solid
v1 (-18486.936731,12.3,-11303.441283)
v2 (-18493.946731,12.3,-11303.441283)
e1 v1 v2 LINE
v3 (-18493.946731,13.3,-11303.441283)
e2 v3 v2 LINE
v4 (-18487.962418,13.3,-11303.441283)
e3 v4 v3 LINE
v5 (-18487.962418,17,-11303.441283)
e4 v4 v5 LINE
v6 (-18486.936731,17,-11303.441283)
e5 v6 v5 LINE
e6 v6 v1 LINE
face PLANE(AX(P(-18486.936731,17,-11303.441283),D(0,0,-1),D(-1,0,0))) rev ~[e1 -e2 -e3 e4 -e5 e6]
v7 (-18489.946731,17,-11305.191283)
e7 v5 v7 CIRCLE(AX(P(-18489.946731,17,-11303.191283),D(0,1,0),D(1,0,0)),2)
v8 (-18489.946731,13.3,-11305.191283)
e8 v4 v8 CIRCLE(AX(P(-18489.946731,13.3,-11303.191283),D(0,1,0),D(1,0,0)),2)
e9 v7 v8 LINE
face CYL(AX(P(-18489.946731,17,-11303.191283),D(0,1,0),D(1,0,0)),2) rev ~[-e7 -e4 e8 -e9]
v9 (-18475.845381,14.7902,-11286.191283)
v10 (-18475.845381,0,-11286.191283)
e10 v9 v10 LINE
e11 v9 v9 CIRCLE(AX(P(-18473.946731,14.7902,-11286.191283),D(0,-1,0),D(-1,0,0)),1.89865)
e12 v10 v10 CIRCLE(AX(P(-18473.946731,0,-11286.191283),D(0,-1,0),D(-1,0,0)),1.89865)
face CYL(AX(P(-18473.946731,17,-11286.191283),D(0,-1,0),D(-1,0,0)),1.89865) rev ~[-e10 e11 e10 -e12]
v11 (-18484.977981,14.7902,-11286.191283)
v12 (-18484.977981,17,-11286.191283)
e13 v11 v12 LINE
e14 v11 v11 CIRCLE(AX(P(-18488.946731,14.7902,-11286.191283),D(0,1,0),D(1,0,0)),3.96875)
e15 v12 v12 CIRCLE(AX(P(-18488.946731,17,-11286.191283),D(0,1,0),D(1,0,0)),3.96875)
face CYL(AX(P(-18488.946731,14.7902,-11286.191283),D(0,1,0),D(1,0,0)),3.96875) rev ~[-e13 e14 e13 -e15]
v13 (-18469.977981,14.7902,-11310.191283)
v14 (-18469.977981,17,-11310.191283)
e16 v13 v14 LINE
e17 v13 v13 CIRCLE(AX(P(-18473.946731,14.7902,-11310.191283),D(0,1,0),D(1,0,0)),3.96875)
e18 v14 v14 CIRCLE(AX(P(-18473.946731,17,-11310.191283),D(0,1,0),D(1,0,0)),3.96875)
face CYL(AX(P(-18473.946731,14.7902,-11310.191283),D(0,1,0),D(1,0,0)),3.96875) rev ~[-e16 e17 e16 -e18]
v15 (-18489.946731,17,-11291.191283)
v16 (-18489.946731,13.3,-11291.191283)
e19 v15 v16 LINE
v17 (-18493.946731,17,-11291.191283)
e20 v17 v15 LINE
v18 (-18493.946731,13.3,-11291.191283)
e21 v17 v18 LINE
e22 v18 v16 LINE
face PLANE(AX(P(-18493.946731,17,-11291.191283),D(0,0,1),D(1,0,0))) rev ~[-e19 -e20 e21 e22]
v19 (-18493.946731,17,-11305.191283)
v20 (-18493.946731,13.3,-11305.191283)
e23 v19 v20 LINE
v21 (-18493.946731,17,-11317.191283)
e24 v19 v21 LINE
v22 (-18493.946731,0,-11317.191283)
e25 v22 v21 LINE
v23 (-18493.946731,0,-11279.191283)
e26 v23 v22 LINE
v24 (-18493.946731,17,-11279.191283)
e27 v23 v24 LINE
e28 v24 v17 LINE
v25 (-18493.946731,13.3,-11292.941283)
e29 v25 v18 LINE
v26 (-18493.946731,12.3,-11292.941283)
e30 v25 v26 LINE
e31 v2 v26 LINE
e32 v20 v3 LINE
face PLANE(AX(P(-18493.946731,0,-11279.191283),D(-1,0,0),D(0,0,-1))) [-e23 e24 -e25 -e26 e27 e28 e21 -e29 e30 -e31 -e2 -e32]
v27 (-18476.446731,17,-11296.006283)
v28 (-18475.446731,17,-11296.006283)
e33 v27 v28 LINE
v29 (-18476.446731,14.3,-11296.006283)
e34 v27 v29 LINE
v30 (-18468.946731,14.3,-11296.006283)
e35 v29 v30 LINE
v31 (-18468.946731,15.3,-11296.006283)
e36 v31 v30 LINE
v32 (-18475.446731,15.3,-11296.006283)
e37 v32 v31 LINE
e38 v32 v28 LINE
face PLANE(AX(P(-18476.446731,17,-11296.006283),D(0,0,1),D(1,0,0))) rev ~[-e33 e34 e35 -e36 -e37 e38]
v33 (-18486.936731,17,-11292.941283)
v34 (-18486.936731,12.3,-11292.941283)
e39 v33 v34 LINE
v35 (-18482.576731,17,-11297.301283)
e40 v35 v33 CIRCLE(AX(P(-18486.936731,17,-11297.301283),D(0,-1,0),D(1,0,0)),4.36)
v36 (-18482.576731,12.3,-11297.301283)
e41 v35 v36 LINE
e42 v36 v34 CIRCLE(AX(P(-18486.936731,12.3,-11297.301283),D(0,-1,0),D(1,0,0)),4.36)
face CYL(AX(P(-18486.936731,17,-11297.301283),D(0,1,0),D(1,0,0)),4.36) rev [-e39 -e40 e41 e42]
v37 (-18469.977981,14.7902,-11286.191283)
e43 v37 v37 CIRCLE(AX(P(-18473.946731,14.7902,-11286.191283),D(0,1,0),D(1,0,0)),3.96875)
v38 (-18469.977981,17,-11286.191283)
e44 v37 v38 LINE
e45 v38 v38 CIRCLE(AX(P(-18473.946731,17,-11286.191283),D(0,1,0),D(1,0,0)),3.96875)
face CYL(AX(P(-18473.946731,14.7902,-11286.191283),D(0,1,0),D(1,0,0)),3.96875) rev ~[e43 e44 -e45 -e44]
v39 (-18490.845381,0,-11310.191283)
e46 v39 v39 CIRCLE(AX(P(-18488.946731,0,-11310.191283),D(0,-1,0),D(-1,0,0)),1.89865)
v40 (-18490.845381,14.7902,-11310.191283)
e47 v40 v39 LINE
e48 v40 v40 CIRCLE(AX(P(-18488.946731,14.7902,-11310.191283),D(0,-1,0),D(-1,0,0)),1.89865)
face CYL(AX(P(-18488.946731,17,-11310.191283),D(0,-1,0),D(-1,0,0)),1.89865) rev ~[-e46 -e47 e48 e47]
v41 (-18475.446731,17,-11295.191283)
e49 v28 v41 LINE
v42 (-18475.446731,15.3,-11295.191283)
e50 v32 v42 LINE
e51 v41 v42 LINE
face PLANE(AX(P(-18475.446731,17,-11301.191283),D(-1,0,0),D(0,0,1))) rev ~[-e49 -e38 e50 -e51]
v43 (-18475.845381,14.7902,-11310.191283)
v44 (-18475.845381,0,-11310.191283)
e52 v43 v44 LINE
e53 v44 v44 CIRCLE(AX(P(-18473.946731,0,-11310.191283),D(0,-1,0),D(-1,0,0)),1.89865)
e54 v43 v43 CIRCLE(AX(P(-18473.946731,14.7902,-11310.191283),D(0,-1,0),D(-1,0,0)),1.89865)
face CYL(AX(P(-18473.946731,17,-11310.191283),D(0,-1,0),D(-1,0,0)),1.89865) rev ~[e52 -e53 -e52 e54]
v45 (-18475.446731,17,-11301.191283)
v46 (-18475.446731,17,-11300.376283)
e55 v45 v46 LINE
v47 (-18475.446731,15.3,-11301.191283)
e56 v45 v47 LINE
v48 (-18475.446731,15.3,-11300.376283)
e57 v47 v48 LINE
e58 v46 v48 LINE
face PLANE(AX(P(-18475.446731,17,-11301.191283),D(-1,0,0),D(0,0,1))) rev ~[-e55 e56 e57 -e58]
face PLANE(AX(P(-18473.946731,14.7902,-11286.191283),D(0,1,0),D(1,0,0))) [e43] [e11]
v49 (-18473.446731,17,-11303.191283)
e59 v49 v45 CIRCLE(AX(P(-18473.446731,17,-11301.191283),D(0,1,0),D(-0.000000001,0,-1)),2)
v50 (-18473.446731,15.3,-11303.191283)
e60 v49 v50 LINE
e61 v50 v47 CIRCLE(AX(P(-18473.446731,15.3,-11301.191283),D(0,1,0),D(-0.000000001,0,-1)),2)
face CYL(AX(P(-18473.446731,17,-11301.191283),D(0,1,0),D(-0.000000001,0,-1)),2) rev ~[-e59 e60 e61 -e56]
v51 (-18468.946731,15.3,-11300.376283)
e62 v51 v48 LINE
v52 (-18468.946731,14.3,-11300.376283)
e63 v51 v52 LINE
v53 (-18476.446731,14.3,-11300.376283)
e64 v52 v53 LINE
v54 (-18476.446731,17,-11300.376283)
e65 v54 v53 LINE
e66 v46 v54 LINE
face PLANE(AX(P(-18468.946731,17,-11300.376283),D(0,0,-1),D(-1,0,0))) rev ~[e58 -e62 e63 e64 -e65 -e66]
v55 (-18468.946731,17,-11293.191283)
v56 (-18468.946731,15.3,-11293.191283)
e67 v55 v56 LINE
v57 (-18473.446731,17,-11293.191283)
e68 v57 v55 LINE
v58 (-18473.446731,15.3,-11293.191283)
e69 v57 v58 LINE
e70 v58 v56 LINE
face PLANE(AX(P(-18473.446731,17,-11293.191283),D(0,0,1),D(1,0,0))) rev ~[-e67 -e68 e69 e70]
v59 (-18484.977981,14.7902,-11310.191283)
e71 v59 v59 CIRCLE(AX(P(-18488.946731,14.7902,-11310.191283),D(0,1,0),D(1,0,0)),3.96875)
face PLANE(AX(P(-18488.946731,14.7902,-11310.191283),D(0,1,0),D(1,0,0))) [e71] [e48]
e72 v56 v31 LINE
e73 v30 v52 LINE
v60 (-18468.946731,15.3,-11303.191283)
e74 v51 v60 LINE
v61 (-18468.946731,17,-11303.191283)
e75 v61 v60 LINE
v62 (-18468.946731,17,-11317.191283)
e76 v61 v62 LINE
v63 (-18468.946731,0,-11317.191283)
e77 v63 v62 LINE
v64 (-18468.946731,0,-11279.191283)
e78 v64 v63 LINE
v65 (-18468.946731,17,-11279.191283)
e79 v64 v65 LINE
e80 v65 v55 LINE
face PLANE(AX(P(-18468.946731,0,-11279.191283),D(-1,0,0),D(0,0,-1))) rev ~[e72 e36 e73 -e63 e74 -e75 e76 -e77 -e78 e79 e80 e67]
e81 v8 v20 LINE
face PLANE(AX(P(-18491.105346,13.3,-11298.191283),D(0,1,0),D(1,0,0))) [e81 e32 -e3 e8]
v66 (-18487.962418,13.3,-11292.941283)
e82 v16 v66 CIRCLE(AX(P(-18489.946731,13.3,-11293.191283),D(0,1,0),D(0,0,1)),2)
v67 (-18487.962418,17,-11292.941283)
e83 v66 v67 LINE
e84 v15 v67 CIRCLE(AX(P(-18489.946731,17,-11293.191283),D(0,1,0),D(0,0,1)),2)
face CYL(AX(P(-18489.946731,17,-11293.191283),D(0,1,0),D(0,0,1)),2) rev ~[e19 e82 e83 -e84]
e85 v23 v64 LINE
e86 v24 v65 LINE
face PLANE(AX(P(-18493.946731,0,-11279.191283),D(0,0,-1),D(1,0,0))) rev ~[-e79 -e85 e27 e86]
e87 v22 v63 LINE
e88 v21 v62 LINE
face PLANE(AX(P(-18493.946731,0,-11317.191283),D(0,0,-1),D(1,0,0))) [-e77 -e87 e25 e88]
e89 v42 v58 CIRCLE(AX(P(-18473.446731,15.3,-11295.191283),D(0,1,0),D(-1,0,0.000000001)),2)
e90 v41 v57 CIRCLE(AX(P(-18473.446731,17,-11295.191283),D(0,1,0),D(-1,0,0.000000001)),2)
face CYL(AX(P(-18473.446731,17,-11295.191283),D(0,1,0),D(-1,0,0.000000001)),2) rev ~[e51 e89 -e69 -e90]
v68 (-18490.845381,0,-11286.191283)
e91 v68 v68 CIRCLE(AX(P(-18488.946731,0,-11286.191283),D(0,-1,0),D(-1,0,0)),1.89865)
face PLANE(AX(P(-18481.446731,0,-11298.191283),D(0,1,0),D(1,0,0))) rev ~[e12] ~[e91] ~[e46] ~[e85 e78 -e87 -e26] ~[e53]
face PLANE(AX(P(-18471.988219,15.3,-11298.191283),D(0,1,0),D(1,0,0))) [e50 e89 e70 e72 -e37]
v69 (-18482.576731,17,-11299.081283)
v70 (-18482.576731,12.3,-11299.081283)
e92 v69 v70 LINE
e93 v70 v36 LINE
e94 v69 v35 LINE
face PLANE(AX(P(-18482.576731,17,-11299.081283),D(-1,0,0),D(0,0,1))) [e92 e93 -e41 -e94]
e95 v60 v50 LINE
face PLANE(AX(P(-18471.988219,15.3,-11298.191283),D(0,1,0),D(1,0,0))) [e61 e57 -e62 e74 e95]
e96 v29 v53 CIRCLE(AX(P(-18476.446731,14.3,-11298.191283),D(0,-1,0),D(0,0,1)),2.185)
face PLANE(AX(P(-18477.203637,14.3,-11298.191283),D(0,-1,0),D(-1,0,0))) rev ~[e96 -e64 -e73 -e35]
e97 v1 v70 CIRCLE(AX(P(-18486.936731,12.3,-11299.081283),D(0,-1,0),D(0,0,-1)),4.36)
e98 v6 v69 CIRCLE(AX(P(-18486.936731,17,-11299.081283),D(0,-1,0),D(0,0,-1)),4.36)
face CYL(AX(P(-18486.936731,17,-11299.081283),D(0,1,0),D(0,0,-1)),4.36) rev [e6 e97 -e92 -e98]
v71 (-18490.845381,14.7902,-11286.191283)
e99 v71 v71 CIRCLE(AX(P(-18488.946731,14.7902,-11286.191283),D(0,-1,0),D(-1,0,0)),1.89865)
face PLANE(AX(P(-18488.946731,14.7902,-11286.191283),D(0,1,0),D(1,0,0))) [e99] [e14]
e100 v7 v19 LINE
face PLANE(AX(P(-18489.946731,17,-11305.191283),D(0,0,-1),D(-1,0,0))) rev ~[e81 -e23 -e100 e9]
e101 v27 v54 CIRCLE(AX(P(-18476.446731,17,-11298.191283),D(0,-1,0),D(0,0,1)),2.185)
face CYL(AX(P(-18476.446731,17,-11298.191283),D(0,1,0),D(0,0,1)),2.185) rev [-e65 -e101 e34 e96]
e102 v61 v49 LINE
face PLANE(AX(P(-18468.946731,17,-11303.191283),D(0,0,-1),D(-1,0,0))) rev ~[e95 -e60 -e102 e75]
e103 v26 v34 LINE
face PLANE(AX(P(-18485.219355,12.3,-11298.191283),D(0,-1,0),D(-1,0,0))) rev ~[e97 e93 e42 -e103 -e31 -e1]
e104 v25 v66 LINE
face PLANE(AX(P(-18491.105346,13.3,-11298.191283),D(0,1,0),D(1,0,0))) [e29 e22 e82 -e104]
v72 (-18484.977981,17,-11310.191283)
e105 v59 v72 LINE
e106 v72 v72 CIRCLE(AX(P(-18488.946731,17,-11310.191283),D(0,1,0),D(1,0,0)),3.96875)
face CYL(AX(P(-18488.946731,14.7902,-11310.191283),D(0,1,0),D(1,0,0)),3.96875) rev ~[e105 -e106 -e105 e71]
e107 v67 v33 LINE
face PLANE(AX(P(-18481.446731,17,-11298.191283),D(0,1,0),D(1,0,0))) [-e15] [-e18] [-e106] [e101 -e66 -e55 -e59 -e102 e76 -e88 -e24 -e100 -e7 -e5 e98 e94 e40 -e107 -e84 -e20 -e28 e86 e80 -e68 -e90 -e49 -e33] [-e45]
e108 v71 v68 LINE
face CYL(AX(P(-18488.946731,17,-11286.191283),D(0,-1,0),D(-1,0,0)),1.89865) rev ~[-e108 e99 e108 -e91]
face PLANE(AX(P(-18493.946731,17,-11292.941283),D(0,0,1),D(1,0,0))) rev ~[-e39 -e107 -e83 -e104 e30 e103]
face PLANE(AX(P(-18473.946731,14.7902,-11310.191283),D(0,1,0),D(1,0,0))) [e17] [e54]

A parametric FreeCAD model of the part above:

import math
import FreeCAD as App
import Part
import Sketcher
from FreeCAD import Vector
Q = App.Units.Quantity

doc = App.newDocument("Part")
body = doc.addObject("PartDesign::Body", "Body")

sketch1 = body.newObject("Sketcher::SketchObject", "Sketch")
sketch1.AttachmentSupport = (doc.getObject("XZ_Plane"), [""])
sketch1.MapMode = "FlatFace"
sketch1.addGeometry([
    Part.LineSegment(Vector(-18494, -11317, 0), Vector(-18494, -11279, 0)),
    Part.LineSegment(Vector(-18494, -11279, 0), Vector(-18469, -11279, 0)),
    Part.LineSegment(Vector(-18469, -11279, 0), Vector(-18469, -11317, 0)),
    Part.LineSegment(Vector(-18469, -11317, 0), Vector(-18494, -11317, 0)),
], False)
sketch1.addConstraint([
    Sketcher.Constraint("Coincident", 0, 2, 1, 1),
    Sketcher.Constraint("Coincident", 1, 2, 2, 1),
    Sketcher.Constraint("Coincident", 2, 2, 3, 1),
    Sketcher.Constraint("Coincident", 3, 2, 0, 1),
    Sketcher.Constraint("Vertical", 0),
    Sketcher.Constraint("Horizontal", 1),
    Sketcher.Constraint("Vertical", 2),
    Sketcher.Constraint("Horizontal", 3),
    Sketcher.Constraint("DistanceX", 1, 1, 1, 2, Q("25 mm")),
    Sketcher.Constraint("DistanceY", 0, 1, 0, 2, Q("38 mm")),
    Sketcher.Constraint("DistanceX", 0, 2, -1, 1, Q("18493.946731 mm")),
    Sketcher.Constraint("DistanceY", 0, 2, -1, 1, Q("11279.191283 mm")),
])
pad1 = body.newObject("PartDesign::Pad", "Pad")
pad1.Profile = sketch1
pad1.Length = 17
pad1.Reversed = True

sketch2 = body.newObject("Sketcher::SketchObject", "Sketch001")
sketch2.AttachmentSupport = (doc.getObject("XZ_Plane"), [""])
sketch2.MapMode = "FlatFace"
sketch2.AttachmentOffset = App.Placement(Vector(0, 0, -17), App.Rotation())
sketch2.addGeometry([
    Part.LineSegment(Vector(-18493.9, -11291.2, 0), Vector(-18489.9, -11291.2, 0)),
    Part.ArcOfCircle(Part.Circle(Vector(-18489.9, -11293.2, 0), Vector(0, 0, 1), 2), math.radians(0), math.radians(90)),
    Part.LineSegment(Vector(-18487.9, -11293.2, 0), Vector(-18487.9, -11303.2, 0)),
    Part.ArcOfCircle(Part.Circle(Vector(-18489.9, -11303.2, 0), Vector(0, 0, 1), 2), math.radians(-90), math.radians(0)),
    Part.LineSegment(Vector(-18489.9, -11305.2, 0), Vector(-18493.9, -11305.2, 0)),
    Part.LineSegment(Vector(-18493.9, -11305.2, 0), Vector(-18493.9, -11291.2, 0)),
], False)
sketch2.addConstraint([
    Sketcher.Constraint("Tangent", 0, 2, 1, 2),
    Sketcher.Constraint("Tangent", 1, 1, 2, 1),
    Sketcher.Constraint("Tangent", 2, 2, 3, 2),
    Sketcher.Constraint("Tangent", 3, 1, 4, 1),
    Sketcher.Constraint("Coincident", 4, 2, 5, 1),
    Sketcher.Constraint("Coincident", 5, 2, 0, 1),
    Sketcher.Constraint("Horizontal", 0),
    Sketcher.Constraint("Vertical", 2),
    Sketcher.Constraint("Horizontal", 4),
    Sketcher.Constraint("Vertical", 5),
    Sketcher.Constraint("Equal", 1, 3),
    Sketcher.Constraint("Radius", 1, Q("2 mm")),
    Sketcher.Constraint("DistanceX", 0, 1, 0, 2, Q("4 mm")),
    Sketcher.Constraint("DistanceY", 2, 2, 2, 1, Q("10 mm")),
    Sketcher.Constraint("DistanceX", 1, 3, -1, 1, Q("18489.946731 mm")),
    Sketcher.Constraint("DistanceY", 1, 3, -1, 1, Q("11293.191283 mm")),
])
pocket1 = body.newObject("PartDesign::Pocket", "Pocket")
pocket1.Profile = sketch2
pocket1.Length = 3.7
pocket1.Reversed = True

sketch3 = body.newObject("Sketcher::SketchObject", "Sketch002")
sketch3.AttachmentSupport = (doc.getObject("XZ_Plane"), [""])
sketch3.MapMode = "FlatFace"
sketch3.AttachmentOffset = App.Placement(Vector(0, 0, -17), App.Rotation())
sketch3.addGeometry([
    Part.LineSegment(Vector(-18475.446731, -11301.191283, 0), Vector(-18475.446731, -11295.191283, 0)),
    Part.ArcOfCircle(Part.Circle(Vector(-18473.446731, -11295.191283, 0), Vector(0, 0, 1), 2), math.radians(90), math.radians(180)),
    Part.LineSegment(Vector(-18473.446731, -11293.191283, 0), Vector(-18468.946731, -11293.191283, 0)),
    Part.LineSegment(Vector(-18468.946731, -11293.191283, 0), Vector(-18468.946731, -11303.191283, 0)),
    Part.LineSegment(Vector(-18468.946731, -11303.191283, 0), Vector(-18473.446731, -11303.191283, 0)),
    Part.ArcOfCircle(Part.Circle(Vector(-18473.446731, -11301.191283, 0), Vector(0, 0, 1), 2), math.radians(-180), math.radians(-90)),
], False)
sketch3.addConstraint([
    Sketcher.Constraint("Tangent", 0, 2, 1, 2),
    Sketcher.Constraint("Tangent", 1, 1, 2, 1),
    Sketcher.Constraint("Coincident", 2, 2, 3, 1),
    Sketcher.Constraint("Coincident", 3, 2, 4, 1),
    Sketcher.Constraint("Tangent", 4, 2, 5, 2),
    Sketcher.Constraint("Tangent", 5, 1, 0, 1),
    Sketcher.Constraint("Vertical", 0),
    Sketcher.Constraint("Horizontal", 2),
    Sketcher.Constraint("Vertical", 3),
    Sketcher.Constraint("Horizontal", 4),
    Sketcher.Constraint("Equal", 1, 5),
    Sketcher.Constraint("Radius", 1, Q("2 mm")),
    Sketcher.Constraint("DistanceY", 0, 1, 0, 2, Q("6 mm")),
    Sketcher.Constraint("DistanceX", 2, 1, 2, 2, Q("4.5 mm")),
    Sketcher.Constraint("DistanceX", 1, 3, -1, 1, Q("18473.446731 mm")),
    Sketcher.Constraint("DistanceY", 1, 3, -1, 1, Q("11295.191283 mm")),
])
pocket2 = body.newObject("PartDesign::Pocket", "Pocket001")
pocket2.Profile = sketch3
pocket2.Length = 1.7
pocket2.Reversed = True

sketch4 = body.newObject("Sketcher::SketchObject", "Sketch003")
sketch4.AttachmentSupport = (doc.getObject("XZ_Plane"), [""])
sketch4.MapMode = "FlatFace"
sketch4.AttachmentOffset = App.Placement(Vector(0, 0, -17), App.Rotation())
sketch4.addGeometry([
    Part.Circle(Vector(-18488.9, -11310.2, 0), Vector(0, 0, 1), 1.9),
    Part.Circle(Vector(-18473.9, -11310.2, 0), Vector(0, 0, 1), 1.9),
    Part.Circle(Vector(-18473.9, -11286.2, 0), Vector(0, 0, 1), 1.9),
    Part.Circle(Vector(-18488.9, -11286.2, 0), Vector(0, 0, 1), 1.9),
], False)
sketch4.addConstraint([
    Sketcher.Constraint("Equal", 0, 1),
    Sketcher.Constraint("Equal", 1, 2),
    Sketcher.Constraint("Equal", 2, 3),
    Sketcher.Constraint("Horizontal", 0, 3, 1, 3),
    Sketcher.Constraint("Horizontal", 2, 3, 3, 3),
    Sketcher.Constraint("Vertical", 1, 3, 2, 3),
    Sketcher.Constraint("Vertical", 0, 3, 3, 3),
    Sketcher.Constraint("DistanceX", 0, 3, 1, 3, Q("15 mm")),
    Sketcher.Constraint("DistanceY", 1, 3, 2, 3, Q("24 mm")),
    Sketcher.Constraint("Diameter", 0, Q("3.7973 mm")),
    Sketcher.Constraint("DistanceX", 0, 3, -1, 1, Q("18488.946731 mm")),
    Sketcher.Constraint("DistanceY", 0, 3, -1, 1, Q("11310.191283 mm")),
])
doc.recompute()
hole = body.newObject("PartDesign::Hole", "Hole")
hole.Profile = sketch4
hole.ThreadType = "None"
hole.Diameter = 3.7973
hole.DepthType = "ThroughAll"
hole.HoleCutType = "Counterbore"
hole.HoleCutDiameter = 7.9375
hole.HoleCutDepth = 2.2098
hole.Reversed = True

sketch5 = body.newObject("Sketcher::SketchObject", "Sketch004")
sketch5.AttachmentSupport = (doc.getObject("XZ_Plane"), [""])
sketch5.MapMode = "FlatFace"
sketch5.AttachmentOffset = App.Placement(Vector(0, 0, -17), App.Rotation())
sketch5.addGeometry([
    Part.ArcOfCircle(Part.Circle(Vector(-18476.4, -11298.2, 0), Vector(0, 0, 1), 2.2), math.radians(90), math.radians(270)),
    Part.LineSegment(Vector(-18476.4, -11296, 0), Vector(-18468.9, -11296, 0)),
    Part.LineSegment(Vector(-18468.9, -11296, 0), Vector(-18468.9, -11300.4, 0)),
    Part.LineSegment(Vector(-18468.9, -11300.4, 0), Vector(-18476.4, -11300.4, 0)),
], False)
sketch5.addConstraint([
    Sketcher.Constraint("Tangent", 0, 1, 1, 1),
    Sketcher.Constraint("Coincident", 1, 2, 2, 1),
    Sketcher.Constraint("Coincident", 2, 2, 3, 1),
    Sketcher.Constraint("Tangent", 3, 2, 0, 2),
    Sketcher.Constraint("Horizontal", 1),
    Sketcher.Constraint("Vertical", 2),
    Sketcher.Constraint("Horizontal", 3),
    Sketcher.Constraint("DistanceX", 1, 1, 1, 2, Q("7.5 mm")),
    Sketcher.Constraint("Radius", 0, Q("2.185 mm")),
    Sketcher.Constraint("DistanceX", 0, 3, -1, 1, Q("18476.446731 mm")),
    Sketcher.Constraint("DistanceY", 0, 3, -1, 1, Q("11298.191283 mm")),
])
pocket3 = body.newObject("PartDesign::Pocket", "Pocket002")
pocket3.Profile = sketch5
pocket3.Length = 2.7
pocket3.Reversed = True

sketch6 = body.newObject("Sketcher::SketchObject", "Sketch005")
sketch6.AttachmentSupport = (doc.getObject("XZ_Plane"), [""])
sketch6.MapMode = "FlatFace"
sketch6.AttachmentOffset = App.Placement(Vector(0, 0, -17), App.Rotation())
sketch6.addGeometry([
    Part.ArcOfCircle(Part.Circle(Vector(-18486.9, -11299.1, 0), Vector(0, 0, 1), 4.4), math.radians(-90), math.radians(0)),
    Part.LineSegment(Vector(-18486.9, -11303.4, 0), Vector(-18493.9, -11303.4, 0)),
    Part.LineSegment(Vector(-18493.9, -11303.4, 0), Vector(-18493.9, -11292.9, 0)),
    Part.LineSegment(Vector(-18493.9, -11292.9, 0), Vector(-18486.9, -11292.9, 0)),
    Part.ArcOfCircle(Part.Circle(Vector(-18486.9, -11297.3, 0), Vector(0, 0, 1), 4.4), math.radians(0), math.radians(90)),
    Part.LineSegment(Vector(-18482.6, -11297.3, 0), Vector(-18482.6, -11299.1, 0)),
], False)
sketch6.addConstraint([
    Sketcher.Constraint("Tangent", 0, 1, 1, 1),
    Sketcher.Constraint("Coincident", 1, 2, 2, 1),
    Sketcher.Constraint("Coincident", 2, 2, 3, 1),
    Sketcher.Constraint("Tangent", 3, 2, 4, 2),
    Sketcher.Constraint("Tangent", 4, 1, 5, 1),
    Sketcher.Constraint("Tangent", 5, 2, 0, 2),
    Sketcher.Constraint("Horizontal", 1),
    Sketcher.Constraint("Vertical", 2),
    Sketcher.Constraint("Horizontal", 3),
    Sketcher.Constraint("Vertical", 5),
    Sketcher.Constraint("Equal", 0, 4),
    Sketcher.Constraint("Radius", 0, Q("4.36 mm")),
    Sketcher.Constraint("DistanceY", 2, 1, 2, 2, Q("10.5 mm")),
    Sketcher.Constraint("DistanceX", 1, 2, 1, 1, Q("7.01 mm")),
    Sketcher.Constraint("DistanceX", 0, 3, -1, 1, Q("18486.936731 mm")),
    Sketcher.Constraint("DistanceY", 0, 3, -1, 1, Q("11299.081283 mm")),
])
pocket4 = body.newObject("PartDesign::Pocket", "Pocket003")
pocket4.Profile = sketch6
pocket4.Length = 4.7
pocket4.Reversed = True

doc.recompute()
